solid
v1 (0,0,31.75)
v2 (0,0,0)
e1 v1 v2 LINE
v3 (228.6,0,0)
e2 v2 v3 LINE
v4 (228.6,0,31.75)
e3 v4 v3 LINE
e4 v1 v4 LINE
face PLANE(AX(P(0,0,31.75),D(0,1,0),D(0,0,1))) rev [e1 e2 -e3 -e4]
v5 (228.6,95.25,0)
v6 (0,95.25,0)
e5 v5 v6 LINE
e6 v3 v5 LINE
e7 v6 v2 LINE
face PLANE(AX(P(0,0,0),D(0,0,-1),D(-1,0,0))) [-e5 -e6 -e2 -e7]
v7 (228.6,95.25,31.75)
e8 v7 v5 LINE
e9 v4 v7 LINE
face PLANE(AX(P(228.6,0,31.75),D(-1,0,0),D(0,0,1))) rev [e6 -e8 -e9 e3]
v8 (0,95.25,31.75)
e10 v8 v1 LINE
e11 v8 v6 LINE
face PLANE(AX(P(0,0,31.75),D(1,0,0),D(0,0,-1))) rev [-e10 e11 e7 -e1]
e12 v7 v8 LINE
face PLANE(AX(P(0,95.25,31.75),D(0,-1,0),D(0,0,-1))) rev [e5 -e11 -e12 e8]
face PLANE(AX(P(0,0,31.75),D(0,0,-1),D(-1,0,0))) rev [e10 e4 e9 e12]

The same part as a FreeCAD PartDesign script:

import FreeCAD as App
import Part
import Sketcher

V = App.Vector
Q = App.Units.Quantity


def add_polygon(sketch, points):
    """Adds a closed chain of lines whose ends are joined by coincident constraints."""
    first, n = sketch.GeometryCount, len(points)
    for a, b in zip(points, points[1:] + points[:1]):
        sketch.addGeometry(Part.LineSegment(App.Vector(*a, 0), App.Vector(*b, 0)), False)
    for i in range(n):
        sketch.addConstraint(Sketcher.Constraint("Coincident", first + i, 2, first + (i + 1) % n, 1))

doc = App.newDocument("Part")
body = doc.addObject("PartDesign::Body", "Body")

# Sketch on XY plane
sketch1 = body.newObject("Sketcher::SketchObject", "Sketch")
sketch1.AttachmentSupport = (doc.getObject("XY_Plane"), [""])
sketch1.MapMode = "FlatFace"
add_polygon(sketch1, [(0, 95), (0, 0), (229, 0), (229, 95)])  # lines 0-3
sketch1.addConstraint([
    Sketcher.Constraint("Vertical", 0),
    Sketcher.Constraint("Horizontal", 1),
    Sketcher.Constraint("Vertical", 2),
    Sketcher.Constraint("Horizontal", 3),
    Sketcher.Constraint("Coincident", 0, 2, -1, 1),
    Sketcher.Constraint("DistanceX", 1, 1, 1, 2, Q("9 in")),
    Sketcher.Constraint("DistanceY", 0, 2, 0, 1, Q("3.75 in")),
])
pad1 = body.newObject("PartDesign::Pad", "Pad")
pad1.Profile = sketch1
pad1.Length = Q("1.25 in")

doc.recompute()
